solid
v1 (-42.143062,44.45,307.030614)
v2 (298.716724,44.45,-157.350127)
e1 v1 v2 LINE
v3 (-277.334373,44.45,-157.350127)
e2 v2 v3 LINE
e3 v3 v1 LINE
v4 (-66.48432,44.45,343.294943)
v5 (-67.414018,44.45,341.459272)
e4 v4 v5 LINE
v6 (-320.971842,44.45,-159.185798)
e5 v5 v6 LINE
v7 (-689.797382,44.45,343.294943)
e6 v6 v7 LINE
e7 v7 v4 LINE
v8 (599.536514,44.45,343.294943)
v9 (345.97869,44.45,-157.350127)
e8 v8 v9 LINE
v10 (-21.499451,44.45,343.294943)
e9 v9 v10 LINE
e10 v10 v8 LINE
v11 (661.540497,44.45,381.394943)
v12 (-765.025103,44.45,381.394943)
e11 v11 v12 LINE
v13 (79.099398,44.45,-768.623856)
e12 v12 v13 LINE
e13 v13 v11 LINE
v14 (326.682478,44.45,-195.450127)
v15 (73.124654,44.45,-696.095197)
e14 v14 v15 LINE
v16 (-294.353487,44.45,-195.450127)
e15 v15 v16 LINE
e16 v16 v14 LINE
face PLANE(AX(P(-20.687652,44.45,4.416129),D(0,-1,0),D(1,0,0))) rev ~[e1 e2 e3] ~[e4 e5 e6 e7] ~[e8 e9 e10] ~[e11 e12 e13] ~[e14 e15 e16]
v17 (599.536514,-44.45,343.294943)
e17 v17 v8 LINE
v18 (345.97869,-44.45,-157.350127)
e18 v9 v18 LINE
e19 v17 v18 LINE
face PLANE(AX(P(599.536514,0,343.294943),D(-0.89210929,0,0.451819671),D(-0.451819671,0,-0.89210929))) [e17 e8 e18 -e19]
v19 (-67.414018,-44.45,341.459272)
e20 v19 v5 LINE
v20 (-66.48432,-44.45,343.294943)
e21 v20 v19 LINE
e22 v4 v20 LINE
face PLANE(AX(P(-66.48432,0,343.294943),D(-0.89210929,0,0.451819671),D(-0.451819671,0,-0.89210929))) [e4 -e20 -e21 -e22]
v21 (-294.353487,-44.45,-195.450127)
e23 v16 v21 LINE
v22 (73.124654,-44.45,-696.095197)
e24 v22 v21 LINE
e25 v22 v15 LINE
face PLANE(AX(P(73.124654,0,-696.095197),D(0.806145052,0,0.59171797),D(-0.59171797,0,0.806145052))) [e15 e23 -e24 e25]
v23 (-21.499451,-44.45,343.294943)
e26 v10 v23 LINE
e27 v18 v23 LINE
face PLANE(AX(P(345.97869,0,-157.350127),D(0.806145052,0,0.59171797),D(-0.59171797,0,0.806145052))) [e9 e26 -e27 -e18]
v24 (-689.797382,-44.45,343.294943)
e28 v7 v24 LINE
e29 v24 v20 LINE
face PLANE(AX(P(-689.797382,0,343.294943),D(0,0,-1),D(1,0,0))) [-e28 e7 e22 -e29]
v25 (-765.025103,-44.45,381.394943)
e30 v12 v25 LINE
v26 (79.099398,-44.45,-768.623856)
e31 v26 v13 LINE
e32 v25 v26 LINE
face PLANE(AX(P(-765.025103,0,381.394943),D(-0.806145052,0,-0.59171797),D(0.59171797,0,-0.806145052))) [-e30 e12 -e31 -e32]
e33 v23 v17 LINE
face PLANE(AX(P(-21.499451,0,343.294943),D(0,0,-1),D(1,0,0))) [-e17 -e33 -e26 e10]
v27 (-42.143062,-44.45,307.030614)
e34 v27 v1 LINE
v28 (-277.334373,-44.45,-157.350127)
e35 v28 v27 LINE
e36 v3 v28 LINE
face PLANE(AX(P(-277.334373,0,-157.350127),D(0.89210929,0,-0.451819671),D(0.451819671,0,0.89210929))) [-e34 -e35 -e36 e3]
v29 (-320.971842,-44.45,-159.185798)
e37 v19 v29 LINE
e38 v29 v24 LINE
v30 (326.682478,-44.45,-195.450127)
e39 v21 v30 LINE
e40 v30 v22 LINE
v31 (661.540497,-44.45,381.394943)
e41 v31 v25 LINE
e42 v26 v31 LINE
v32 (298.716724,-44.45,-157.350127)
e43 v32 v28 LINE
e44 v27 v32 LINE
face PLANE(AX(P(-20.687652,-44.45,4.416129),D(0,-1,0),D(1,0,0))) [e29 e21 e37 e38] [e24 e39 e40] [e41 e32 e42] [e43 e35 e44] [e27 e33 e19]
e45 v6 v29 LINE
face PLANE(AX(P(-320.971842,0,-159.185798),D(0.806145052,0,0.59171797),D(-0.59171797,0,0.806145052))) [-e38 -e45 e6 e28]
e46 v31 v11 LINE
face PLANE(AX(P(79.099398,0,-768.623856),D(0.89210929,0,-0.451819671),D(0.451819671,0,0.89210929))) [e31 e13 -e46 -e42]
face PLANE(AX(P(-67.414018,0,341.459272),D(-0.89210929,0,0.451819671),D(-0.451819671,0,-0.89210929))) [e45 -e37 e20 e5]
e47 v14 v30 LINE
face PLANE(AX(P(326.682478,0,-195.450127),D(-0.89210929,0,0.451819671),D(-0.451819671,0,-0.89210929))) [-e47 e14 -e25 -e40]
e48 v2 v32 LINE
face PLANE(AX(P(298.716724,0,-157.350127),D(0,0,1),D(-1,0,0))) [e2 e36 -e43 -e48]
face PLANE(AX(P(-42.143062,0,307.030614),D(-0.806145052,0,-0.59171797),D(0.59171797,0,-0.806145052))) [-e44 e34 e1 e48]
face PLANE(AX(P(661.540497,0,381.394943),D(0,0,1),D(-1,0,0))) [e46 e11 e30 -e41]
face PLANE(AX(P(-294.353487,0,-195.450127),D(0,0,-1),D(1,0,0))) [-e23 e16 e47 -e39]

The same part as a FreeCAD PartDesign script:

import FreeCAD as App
import Part
import Sketcher
from FreeCAD import Vector
Q = App.Units.Quantity


def add_polygon(sketch, points):
    """Adds a closed chain of lines whose ends are joined by coincident constraints."""
    first, n = sketch.GeometryCount, len(points)
    for a, b in zip(points, points[1:] + points[:1]):
        sketch.addGeometry(Part.LineSegment(App.Vector(*a, 0), App.Vector(*b, 0)), False)
    for i in range(n):
        sketch.addConstraint(Sketcher.Constraint("Coincident", first + i, 2, first + (i + 1) % n, 1))

doc = App.newDocument("Part")
body = doc.addObject("PartDesign::Body", "Body")

# Sketch on XZ plane
sketch1 = body.newObject("Sketcher::SketchObject", "Sketch")
sketch1.AttachmentSupport = (doc.getObject("XZ_Plane"), [""])
sketch1.MapMode = "FlatFace"
add_polygon(sketch1, [(661.5, 381.4), (-765, 381.4), (79.1, -768.6)])  # lines 0-2
add_polygon(sketch1, [(-42.1, 307), (298.7, -157.4), (-277.3, -157.4)])  # lines 3-5
add_polygon(sketch1, [(73.1, -696.1), (-294.4, -195.5), (326.7, -195.5)])  # lines 6-8
add_polygon(sketch1, [(-67.4, 341.5), (-321, -159.2), (-689.8, 343.3), (-66.5, 343.3)])  # lines 9-12
add_polygon(sketch1, [(599.5, 343.3), (346, -157.4), (-21.5, 343.3)])  # lines 13-15
sketch1.addConstraint([
    Sketcher.Constraint("Horizontal", 0),
    Sketcher.Constraint("Horizontal", 4),
    Sketcher.Constraint("Horizontal", 7),
    Sketcher.Constraint("Horizontal", 11),
    Sketcher.Constraint("Horizontal", 15),
    Sketcher.Constraint("Parallel", 1, 3),
    Sketcher.Constraint("Parallel", 2, 5),
    Sketcher.Constraint("Parallel", 3, 6),
    Sketcher.Constraint("Parallel", 5, 8),
    Sketcher.Constraint("Parallel", 8, 9),
    Sketcher.Constraint("Parallel", 6, 10),
    Sketcher.Constraint("Parallel", 9, 12),
    Sketcher.Constraint("Parallel", 12, 13),
    Sketcher.Constraint("Parallel", 10, 14),
    Sketcher.Constraint("Horizontal", 4, 2, 13, 2),
    Sketcher.Constraint("Horizontal", 11, 2, 14, 2),
    Sketcher.Constraint("Equal", 7, 15),
    Sketcher.Constraint("Equal", 8, 9),
    Sketcher.Constraint("DistanceY", 6, 2, 4, 2, Q("1.5 in")),
    Sketcher.Constraint("DistanceY", 10, 2, 0, 2, Q("1.5 in")),
    Sketcher.Constraint("DistanceX", 0, 2, 0, 1, Q("56.164 in")),
    Sketcher.Constraint("Distance", 1, Q("56.164 in")),
    Sketcher.Constraint("Distance", 2, Q("50.752 in")),
    Sketcher.Constraint("DistanceX", -1, 1, 1, 2, 79.099398),
    Sketcher.Constraint("DistanceY", 4, 2, 12, 2, 498.8094),
    Sketcher.Constraint("Distance", 8, 561.192531),
    Sketcher.Constraint("DistanceX", 4, 2, 4, 1, 576.051096),
    Sketcher.Constraint("DistanceX", 5, 2, -1, 1, 42.143062),
    Sketcher.Constraint("DistanceX", -1, 1, 7, 2, 326.682478),
    Sketcher.Constraint("DistanceX", 10, 2, -1, 1, 689.797382),
    Sketcher.Constraint("DistanceX", -1, 1, 13, 2, 345.97869),
    Sketcher.Constraint("DistanceY", -1, 1, 0, 2, 381.394943),
])
pad1 = body.newObject("PartDesign::Pad", "Pad")
pad1.Profile = sketch1
pad1.Length = Q("3.5 in")
pad1.Midplane = True

doc.recompute()
